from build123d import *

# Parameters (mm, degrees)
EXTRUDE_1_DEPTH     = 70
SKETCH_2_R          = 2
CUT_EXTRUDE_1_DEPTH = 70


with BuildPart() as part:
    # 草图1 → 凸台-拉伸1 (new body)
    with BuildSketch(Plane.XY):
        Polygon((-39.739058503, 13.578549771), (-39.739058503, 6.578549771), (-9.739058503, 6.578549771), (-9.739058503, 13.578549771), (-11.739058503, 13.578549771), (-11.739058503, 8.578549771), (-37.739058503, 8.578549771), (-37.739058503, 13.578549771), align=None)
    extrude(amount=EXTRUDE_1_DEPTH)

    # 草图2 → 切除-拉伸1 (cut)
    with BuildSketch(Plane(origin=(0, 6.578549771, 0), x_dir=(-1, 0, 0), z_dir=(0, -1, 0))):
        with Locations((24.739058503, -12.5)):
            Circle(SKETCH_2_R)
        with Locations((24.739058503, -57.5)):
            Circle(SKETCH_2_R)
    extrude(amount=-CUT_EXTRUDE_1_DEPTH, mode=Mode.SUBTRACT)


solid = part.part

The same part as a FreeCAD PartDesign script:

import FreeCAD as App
import Part
import Sketcher
from FreeCAD import Vector
Q = App.Units.Quantity

doc = App.newDocument("Part")
body = doc.addObject("PartDesign::Body", "Body")

# Sketch on XY plane
sketch1 = body.newObject("Sketcher::SketchObject", "Sketch")
sketch1.AttachmentSupport = (doc.getObject("XY_Plane"), [""])
sketch1.MapMode = "FlatFace"
sketch1.addGeometry([
    Part.LineSegment(Vector(-39.7, 13.6, 0), Vector(-39.7, 6.6, 0)),  # 0
    Part.LineSegment(Vector(-39.7, 6.6, 0), Vector(-9.7, 6.6, 0)),  # 1
    Part.LineSegment(Vector(-9.7, 6.6, 0), Vector(-9.7, 13.6, 0)),  # 2
    Part.LineSegment(Vector(-9.7, 13.6, 0), Vector(-11.7, 13.6, 0)),  # 3
    Part.LineSegment(Vector(-11.7, 13.6, 0), Vector(-11.7, 8.6, 0)),  # 4
    Part.LineSegment(Vector(-11.7, 8.6, 0), Vector(-37.7, 8.6, 0)),  # 5
    Part.LineSegment(Vector(-37.7, 8.6, 0), Vector(-37.7, 13.6, 0)),  # 6
    Part.LineSegment(Vector(-37.7, 13.6, 0), Vector(-39.7, 13.6, 0)),  # 7
], False)
sketch1.addConstraint([
    Sketcher.Constraint("Coincident", 0, 2, 1, 1),
    Sketcher.Constraint("Coincident", 1, 2, 2, 1),
    Sketcher.Constraint("Coincident", 2, 2, 3, 1),
    Sketcher.Constraint("Coincident", 3, 2, 4, 1),
    Sketcher.Constraint("Coincident", 4, 2, 5, 1),
    Sketcher.Constraint("Coincident", 5, 2, 6, 1),
    Sketcher.Constraint("Coincident", 6, 2, 7, 1),
    Sketcher.Constraint("Coincident", 7, 2, 0, 1),
    Sketcher.Constraint("Vertical", 0),
    Sketcher.Constraint("Horizontal", 1),
    Sketcher.Constraint("Vertical", 2),
    Sketcher.Constraint("Horizontal", 3),
    Sketcher.Constraint("Vertical", 4),
    Sketcher.Constraint("Horizontal", 5),
    Sketcher.Constraint("Vertical", 6),
    Sketcher.Constraint("Horizontal", 7),
    Sketcher.Constraint("Horizontal", 3, 2, 6, 2),
    Sketcher.Constraint("Equal", 3, 7),
    Sketcher.Constraint("DistanceX", 1, 1, 1, 2, Q("30 mm")),
    Sketcher.Constraint("DistanceX", 3, 2, 3, 1, Q("2 mm")),
    Sketcher.Constraint("DistanceY", 0, 2, 0, 1, Q("7 mm")),
    Sketcher.Constraint("DistanceY", 4, 2, 4, 1, Q("5 mm")),
    Sketcher.Constraint("DistanceX", 0, 2, -1, 1, Q("39.739059 mm")),
    Sketcher.Constraint("DistanceY", -1, 1, 0, 2, Q("6.57855 mm")),
])
pad1 = body.newObject("PartDesign::Pad", "Pad")
pad1.Profile = sketch1
pad1.Length = 70

# Sketch on XZ plane
sketch2 = body.newObject("Sketcher::SketchObject", "Sketch001")
sketch2.AttachmentSupport = (doc.getObject("XZ_Plane"), [""])
sketch2.MapMode = "FlatFace"
sketch2.AttachmentOffset = App.Placement(Vector(0, 0, -6.57855), App.Rotation())
sketch2.addGeometry([
    Part.Circle(Vector(-24.7, 12.5, 0), Vector(0, 0, 1), 2),
    Part.Circle(Vector(-24.7, 57.5, 0), Vector(0, 0, 1), 2),
], False)
sketch2.addConstraint([
    Sketcher.Constraint("Equal", 0, 1),
    Sketcher.Constraint("Vertical", 0, 3, 1, 3),
    Sketcher.Constraint("Diameter", 0, Q("4 mm")),
    Sketcher.Constraint("DistanceY", 0, 3, 1, 3, Q("45 mm")),
    Sketcher.Constraint("DistanceY", -1, 1, 0, 3, Q("12.5 mm")),
    Sketcher.Constraint("DistanceX", 0, 3, -1, 1, Q("24.739059 mm")),
])
pocket1 = body.newObject("PartDesign::Pocket", "Pocket")
pocket1.Profile = sketch2
pocket1.Length = 70

doc.recompute()
